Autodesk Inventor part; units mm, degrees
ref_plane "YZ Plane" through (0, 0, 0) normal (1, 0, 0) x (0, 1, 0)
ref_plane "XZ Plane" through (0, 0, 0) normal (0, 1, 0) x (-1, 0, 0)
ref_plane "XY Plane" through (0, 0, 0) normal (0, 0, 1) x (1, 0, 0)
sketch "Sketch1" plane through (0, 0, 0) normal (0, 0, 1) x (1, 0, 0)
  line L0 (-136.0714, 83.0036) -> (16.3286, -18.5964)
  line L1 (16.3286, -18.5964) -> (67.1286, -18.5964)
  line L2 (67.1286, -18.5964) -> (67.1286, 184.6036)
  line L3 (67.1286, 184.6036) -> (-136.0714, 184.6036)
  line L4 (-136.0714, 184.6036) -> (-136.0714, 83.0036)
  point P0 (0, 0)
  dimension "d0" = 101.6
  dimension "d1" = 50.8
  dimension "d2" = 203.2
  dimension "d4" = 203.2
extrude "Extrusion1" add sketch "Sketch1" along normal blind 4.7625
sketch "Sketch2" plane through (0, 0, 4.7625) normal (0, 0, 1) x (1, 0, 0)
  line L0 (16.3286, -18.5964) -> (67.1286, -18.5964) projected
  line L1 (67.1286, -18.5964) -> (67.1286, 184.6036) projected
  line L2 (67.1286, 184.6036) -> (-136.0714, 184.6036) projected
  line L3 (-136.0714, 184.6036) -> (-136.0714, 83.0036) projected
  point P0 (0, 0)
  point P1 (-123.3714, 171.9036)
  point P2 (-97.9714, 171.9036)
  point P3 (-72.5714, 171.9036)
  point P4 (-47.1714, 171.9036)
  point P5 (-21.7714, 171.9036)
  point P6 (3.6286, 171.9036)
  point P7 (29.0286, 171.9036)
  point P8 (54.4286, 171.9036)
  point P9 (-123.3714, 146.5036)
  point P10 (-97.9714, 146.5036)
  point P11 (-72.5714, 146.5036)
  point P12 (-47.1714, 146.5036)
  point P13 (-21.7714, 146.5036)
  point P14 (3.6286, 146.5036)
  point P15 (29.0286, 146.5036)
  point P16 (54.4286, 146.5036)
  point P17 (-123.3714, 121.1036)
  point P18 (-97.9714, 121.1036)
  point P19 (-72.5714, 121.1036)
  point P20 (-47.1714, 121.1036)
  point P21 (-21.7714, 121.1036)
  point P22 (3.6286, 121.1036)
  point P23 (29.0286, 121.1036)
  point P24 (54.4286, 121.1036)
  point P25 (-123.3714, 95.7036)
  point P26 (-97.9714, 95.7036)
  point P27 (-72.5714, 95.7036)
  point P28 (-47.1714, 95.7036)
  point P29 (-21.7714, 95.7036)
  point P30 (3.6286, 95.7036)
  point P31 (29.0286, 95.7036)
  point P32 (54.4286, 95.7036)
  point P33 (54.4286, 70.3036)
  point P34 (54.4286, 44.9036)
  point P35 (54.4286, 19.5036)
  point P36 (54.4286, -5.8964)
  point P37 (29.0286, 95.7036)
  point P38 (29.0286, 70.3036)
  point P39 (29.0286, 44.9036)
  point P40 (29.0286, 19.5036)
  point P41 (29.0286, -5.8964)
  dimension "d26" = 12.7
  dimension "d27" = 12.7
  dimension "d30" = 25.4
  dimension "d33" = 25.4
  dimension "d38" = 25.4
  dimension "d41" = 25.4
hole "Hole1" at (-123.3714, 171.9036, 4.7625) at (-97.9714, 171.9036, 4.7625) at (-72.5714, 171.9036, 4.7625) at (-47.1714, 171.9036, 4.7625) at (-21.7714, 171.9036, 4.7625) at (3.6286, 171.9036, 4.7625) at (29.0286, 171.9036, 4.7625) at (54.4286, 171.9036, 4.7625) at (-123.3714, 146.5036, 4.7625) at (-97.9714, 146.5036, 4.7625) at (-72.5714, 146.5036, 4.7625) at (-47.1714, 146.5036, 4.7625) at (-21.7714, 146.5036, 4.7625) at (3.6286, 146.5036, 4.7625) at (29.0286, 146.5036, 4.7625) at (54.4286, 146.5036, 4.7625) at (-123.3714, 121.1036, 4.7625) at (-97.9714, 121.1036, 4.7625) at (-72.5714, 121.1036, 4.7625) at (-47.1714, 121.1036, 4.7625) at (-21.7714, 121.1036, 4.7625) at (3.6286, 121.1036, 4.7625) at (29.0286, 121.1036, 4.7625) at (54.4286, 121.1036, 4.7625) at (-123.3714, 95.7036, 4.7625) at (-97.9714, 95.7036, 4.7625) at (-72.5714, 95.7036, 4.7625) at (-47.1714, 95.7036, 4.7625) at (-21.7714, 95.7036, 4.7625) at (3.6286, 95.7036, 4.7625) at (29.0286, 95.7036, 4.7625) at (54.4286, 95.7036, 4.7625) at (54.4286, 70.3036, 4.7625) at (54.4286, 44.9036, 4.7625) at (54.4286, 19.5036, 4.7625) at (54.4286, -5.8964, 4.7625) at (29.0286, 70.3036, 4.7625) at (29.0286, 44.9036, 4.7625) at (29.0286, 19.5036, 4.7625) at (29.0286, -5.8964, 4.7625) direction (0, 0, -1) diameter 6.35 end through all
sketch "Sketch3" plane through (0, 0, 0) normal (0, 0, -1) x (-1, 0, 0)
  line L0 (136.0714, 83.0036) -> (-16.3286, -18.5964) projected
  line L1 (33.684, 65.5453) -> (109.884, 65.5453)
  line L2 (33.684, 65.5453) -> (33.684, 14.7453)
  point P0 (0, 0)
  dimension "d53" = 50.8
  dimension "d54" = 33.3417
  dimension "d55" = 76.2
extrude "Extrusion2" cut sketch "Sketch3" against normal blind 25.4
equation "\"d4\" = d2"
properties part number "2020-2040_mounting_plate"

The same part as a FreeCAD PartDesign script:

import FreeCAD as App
import Part
import Sketcher

V = App.Vector
Q = App.Units.Quantity

doc = App.newDocument("Part")
body = doc.addObject("PartDesign::Body", "Body")

sketch1 = body.newObject("Sketcher::SketchObject", "Sketch")
sketch1.AttachmentSupport = (doc.getObject("XY_Plane"), [""])
sketch1.MapMode = "FlatFace"
sketch1.addGeometry([
    Part.LineSegment(V(-136, 185, 0), V(-136, 83, 0)),
    Part.LineSegment(V(-136, 83, 0), V(16, -19, 0)),
    Part.LineSegment(V(16, -19, 0), V(67, -19, 0)),
    Part.LineSegment(V(67, -19, 0), V(67, 185, 0)),
    Part.LineSegment(V(67, 185, 0), V(-136, 185, 0)),
], False)
sketch1.addConstraint([
    Sketcher.Constraint("Coincident", 0, 2, 1, 1),
    Sketcher.Constraint("Coincident", 1, 2, 2, 1),
    Sketcher.Constraint("Coincident", 2, 2, 3, 1),
    Sketcher.Constraint("Coincident", 3, 2, 4, 1),
    Sketcher.Constraint("Coincident", 4, 2, 0, 1),
    Sketcher.Constraint("Vertical", 0),
    Sketcher.Constraint("Horizontal", 2),
    Sketcher.Constraint("Vertical", 3),
    Sketcher.Constraint("Horizontal", 4),
    Sketcher.Constraint("Equal", 4, 3),
    Sketcher.Constraint("DistanceX", 2, 1, 2, 2, Q("2 in")),
    Sketcher.Constraint("DistanceX", 4, 2, 4, 1, Q("8 in")),
    Sketcher.Constraint("DistanceY", 0, 2, 0, 1, Q("4 in")),
    Sketcher.Constraint("DistanceX", 0, 2, -1, 1, Q("136.0714 mm")),
    Sketcher.Constraint("DistanceY", -1, 1, 0, 2, Q("83.0036 mm")),
])
pad1 = body.newObject("PartDesign::Pad", "Pad")
pad1.Profile = sketch1
pad1.Length = Q("0.1875 in")

sketch2 = body.newObject("Sketcher::SketchObject", "Sketch001")
sketch2.AttachmentSupport = (doc.getObject("XY_Plane"), [""])
sketch2.MapMode = "FlatFace"
sketch2.AttachmentOffset = App.Placement(V(0, 0, 0.1875 * 25.4), App.Rotation())
sketch2.addGeometry([
    Part.Circle(V(-123.4, 171.9, 0), V(0, 0, 1), 3.2),
    Part.Circle(V(-98, 171.9, 0), V(0, 0, 1), 3.2),
    Part.Circle(V(-72.6, 171.9, 0), V(0, 0, 1), 3.2),
    Part.Circle(V(-47.2, 171.9, 0), V(0, 0, 1), 3.2),
    Part.Circle(V(-21.8, 171.9, 0), V(0, 0, 1), 3.2),
    Part.Circle(V(3.6, 171.9, 0), V(0, 0, 1), 3.2),
    Part.Circle(V(29, 171.9, 0), V(0, 0, 1), 3.2),
    Part.Circle(V(54.4, 171.9, 0), V(0, 0, 1), 3.2),
    Part.Circle(V(-123.4, 146.5, 0), V(0, 0, 1), 3.2),
    Part.Circle(V(-98, 146.5, 0), V(0, 0, 1), 3.2),
    Part.Circle(V(-72.6, 146.5, 0), V(0, 0, 1), 3.2),
    Part.Circle(V(-47.2, 146.5, 0), V(0, 0, 1), 3.2),
    Part.Circle(V(-21.8, 146.5, 0), V(0, 0, 1), 3.2),
    Part.Circle(V(3.6, 146.5, 0), V(0, 0, 1), 3.2),
    Part.Circle(V(29, 146.5, 0), V(0, 0, 1), 3.2),
    Part.Circle(V(54.4, 146.5, 0), V(0, 0, 1), 3.2),
    Part.Circle(V(-123.4, 121.1, 0), V(0, 0, 1), 3.2),
    Part.Circle(V(-98, 121.1, 0), V(0, 0, 1), 3.2),
    Part.Circle(V(-72.6, 121.1, 0), V(0, 0, 1), 3.2),
    Part.Circle(V(-47.2, 121.1, 0), V(0, 0, 1), 3.2),
    Part.Circle(V(-21.8, 121.1, 0), V(0, 0, 1), 3.2),
    Part.Circle(V(3.6, 121.1, 0), V(0, 0, 1), 3.2),
    Part.Circle(V(29, 121.1, 0), V(0, 0, 1), 3.2),
    Part.Circle(V(54.4, 121.1, 0), V(0, 0, 1), 3.2),
    Part.Circle(V(-123.4, 95.7, 0), V(0, 0, 1), 3.2),
    Part.Circle(V(-98, 95.7, 0), V(0, 0, 1), 3.2),
    Part.Circle(V(-72.6, 95.7, 0), V(0, 0, 1), 3.2),
    Part.Circle(V(-47.2, 95.7, 0), V(0, 0, 1), 3.2),
    Part.Circle(V(-21.8, 95.7, 0), V(0, 0, 1), 3.2),
    Part.Circle(V(3.6, 95.7, 0), V(0, 0, 1), 3.2),
    Part.Circle(V(29, 95.7, 0), V(0, 0, 1), 3.2),
    Part.Circle(V(54.4, 95.7, 0), V(0, 0, 1), 3.2),
    Part.Circle(V(54.4, 70.3, 0), V(0, 0, 1), 3.2),
    Part.Circle(V(54.4, 44.9, 0), V(0, 0, 1), 3.2),
    Part.Circle(V(54.4, 19.5, 0), V(0, 0, 1), 3.2),
    Part.Circle(V(54.4, -5.9, 0), V(0, 0, 1), 3.2),
    Part.Circle(V(29, 70.3, 0), V(0, 0, 1), 3.2),
    Part.Circle(V(29, 44.9, 0), V(0, 0, 1), 3.2),
    Part.Circle(V(29, 19.5, 0), V(0, 0, 1), 3.2),
    Part.Circle(V(29, -5.9, 0), V(0, 0, 1), 3.2),
], False)
sketch2.addConstraint([
    Sketcher.Constraint("Equal", 0, 1),
    Sketcher.Constraint("Equal", 1, 2),
    Sketcher.Constraint("Equal", 2, 3),
    Sketcher.Constraint("Equal", 3, 4),
    Sketcher.Constraint("Equal", 4, 5),
    Sketcher.Constraint("Equal", 5, 6),
    Sketcher.Constraint("Equal", 6, 7),
    Sketcher.Constraint("Equal", 7, 8),
    Sketcher.Constraint("Equal", 8, 9),
    Sketcher.Constraint("Equal", 9, 10),
    Sketcher.Constraint("Equal", 10, 11),
    Sketcher.Constraint("Equal", 11, 12),
    Sketcher.Constraint("Equal", 12, 13),
    Sketcher.Constraint("Equal", 13, 14),
    Sketcher.Constraint("Equal", 14, 15),
    Sketcher.Constraint("Equal", 15, 16),
    Sketcher.Constraint("Equal", 16, 17),
    Sketcher.Constraint("Equal", 17, 18),
    Sketcher.Constraint("Equal", 18, 19),
    Sketcher.Constraint("Equal", 19, 20),
    Sketcher.Constraint("Equal", 20, 21),
    Sketcher.Constraint("Equal", 21, 22),
    Sketcher.Constraint("Equal", 22, 23),
    Sketcher.Constraint("Equal", 23, 24),
    Sketcher.Constraint("Equal", 24, 25),
    Sketcher.Constraint("Equal", 25, 26),
    Sketcher.Constraint("Equal", 26, 27),
    Sketcher.Constraint("Equal", 27, 28),
    Sketcher.Constraint("Equal", 28, 29),
    Sketcher.Constraint("Equal", 29, 30),
    Sketcher.Constraint("Equal", 30, 31),
    Sketcher.Constraint("Equal", 31, 32),
    Sketcher.Constraint("Equal", 32, 33),
    Sketcher.Constraint("Equal", 33, 34),
    Sketcher.Constraint("Equal", 34, 35),
    Sketcher.Constraint("Equal", 35, 36),
    Sketcher.Constraint("Equal", 36, 37),
    Sketcher.Constraint("Equal", 37, 38),
    Sketcher.Constraint("Equal", 38, 39),
    Sketcher.Constraint("Horizontal", 0, 3, 1, 3),
    Sketcher.Constraint("Horizontal", 1, 3, 2, 3),
    Sketcher.Constraint("Horizontal", 2, 3, 3, 3),
    Sketcher.Constraint("Horizontal", 3, 3, 4, 3),
    Sketcher.Constraint("Horizontal", 4, 3, 5, 3),
    Sketcher.Constraint("Horizontal", 5, 3, 6, 3),
    Sketcher.Constraint("Horizontal", 6, 3, 7, 3),
    Sketcher.Constraint("Horizontal", 8, 3, 9, 3),
    Sketcher.Constraint("Horizontal", 9, 3, 10, 3),
    Sketcher.Constraint("Horizontal", 10, 3, 11, 3),
    Sketcher.Constraint("Horizontal", 11, 3, 12, 3),
    Sketcher.Constraint("Horizontal", 12, 3, 13, 3),
    Sketcher.Constraint("Horizontal", 13, 3, 14, 3),
    Sketcher.Constraint("Horizontal", 14, 3, 15, 3),
    Sketcher.Constraint("Horizontal", 16, 3, 17, 3),
    Sketcher.Constraint("Horizontal", 17, 3, 18, 3),
    Sketcher.Constraint("Horizontal", 18, 3, 19, 3),
    Sketcher.Constraint("Horizontal", 19, 3, 20, 3),
    Sketcher.Constraint("Horizontal", 20, 3, 21, 3),
    Sketcher.Constraint("Horizontal", 21, 3, 22, 3),
    Sketcher.Constraint("Horizontal", 22, 3, 23, 3),
    Sketcher.Constraint("Horizontal", 24, 3, 25, 3),
    Sketcher.Constraint("Horizontal", 25, 3, 26, 3),
    Sketcher.Constraint("Horizontal", 26, 3, 27, 3),
    Sketcher.Constraint("Horizontal", 27, 3, 28, 3),
    Sketcher.Constraint("Horizontal", 28, 3, 29, 3),
    Sketcher.Constraint("Horizontal", 29, 3, 30, 3),
    Sketcher.Constraint("Horizontal", 30, 3, 31, 3),
    Sketcher.Constraint("Horizontal", 32, 3, 36, 3),
    Sketcher.Constraint("Horizontal", 33, 3, 37, 3),
    Sketcher.Constraint("Horizontal", 34, 3, 38, 3),
    Sketcher.Constraint("Horizontal", 35, 3, 39, 3),
    Sketcher.Constraint("Vertical", 0, 3, 8, 3),
    Sketcher.Constraint("Vertical", 1, 3, 9, 3),
    Sketcher.Constraint("Vertical", 2, 3, 10, 3),
    Sketcher.Constraint("Vertical", 3, 3, 11, 3),
    Sketcher.Constraint("Vertical", 4, 3, 12, 3),
    Sketcher.Constraint("Vertical", 5, 3, 13, 3),
    Sketcher.Constraint("Vertical", 6, 3, 14, 3),
    Sketcher.Constraint("Vertical", 7, 3, 15, 3),
    Sketcher.Constraint("Vertical", 8, 3, 16, 3),
    Sketcher.Constraint("Vertical", 9, 3, 17, 3),
    Sketcher.Constraint("Vertical", 10, 3, 18, 3),
    Sketcher.Constraint("Vertical", 11, 3, 19, 3),
    Sketcher.Constraint("Vertical", 12, 3, 20, 3),
    Sketcher.Constraint("Vertical", 13, 3, 21, 3),
    Sketcher.Constraint("Vertical", 14, 3, 22, 3),
    Sketcher.Constraint("Vertical", 15, 3, 23, 3),
    Sketcher.Constraint("Vertical", 16, 3, 24, 3),
    Sketcher.Constraint("Vertical", 17, 3, 25, 3),
    Sketcher.Constraint("Vertical", 18, 3, 26, 3),
    Sketcher.Constraint("Vertical", 19, 3, 27, 3),
    Sketcher.Constraint("Vertical", 20, 3, 28, 3),
    Sketcher.Constraint("Vertical", 21, 3, 29, 3),
    Sketcher.Constraint("Vertical", 22, 3, 30, 3),
    Sketcher.Constraint("Vertical", 23, 3, 31, 3),
    Sketcher.Constraint("Vertical", 31, 3, 32, 3),
    Sketcher.Constraint("Vertical", 32, 3, 33, 3),
    Sketcher.Constraint("Vertical", 33, 3, 34, 3),
    Sketcher.Constraint("Vertical", 34, 3, 35, 3),
    Sketcher.Constraint("Vertical", 30, 3, 36, 3),
    Sketcher.Constraint("Vertical", 36, 3, 37, 3),
    Sketcher.Constraint("Vertical", 37, 3, 38, 3),
    Sketcher.Constraint("Vertical", 38, 3, 39, 3),
    Sketcher.Constraint("Diameter", 0, Q("0.25 in")),
    Sketcher.Constraint("DistanceX", 0, 3, 1, 3, Q("1 in")),
    Sketcher.Constraint("DistanceX", 1, 3, 2, 3, Q("1 in")),
    Sketcher.Constraint("DistanceX", 2, 3, 3, 3, Q("1 in")),
    Sketcher.Constraint("DistanceX", 3, 3, 4, 3, Q("1 in")),
    Sketcher.Constraint("DistanceX", 4, 3, 5, 3, Q("1 in")),
    Sketcher.Constraint("DistanceX", 5, 3, 6, 3, Q("1 in")),
    Sketcher.Constraint("DistanceX", 6, 3, 7, 3, Q("1 in")),
    Sketcher.Constraint("DistanceY", 8, 3, 0, 3, Q("1 in")),
    Sketcher.Constraint("DistanceY", 16, 3, 8, 3, Q("1 in")),
    Sketcher.Constraint("DistanceY", 24, 3, 16, 3, Q("1 in")),
    Sketcher.Constraint("DistanceY", 32, 3, 31, 3, Q("1 in")),
    Sketcher.Constraint("DistanceY", 33, 3, 32, 3, Q("1 in")),
    Sketcher.Constraint("DistanceY", 34, 3, 33, 3, Q("1 in")),
    Sketcher.Constraint("DistanceY", 35, 3, 34, 3, Q("1 in")),
    Sketcher.Constraint("DistanceX", 0, 3, -1, 1, Q("123.3714 mm")),
    Sketcher.Constraint("DistanceY", -1, 1, 0, 3, Q("171.9036 mm")),
])
doc.recompute()
hole = body.newObject("PartDesign::Hole", "Hole")
hole.Profile = sketch2
hole.ThreadType = "None"
hole.Diameter = Q("0.25 in")
hole.DepthType = "ThroughAll"

sketch3 = body.newObject("Sketcher::SketchObject", "Sketch002")
sketch3.AttachmentSupport = (doc.getObject("XY_Plane"), [""])
sketch3.MapMode = "FlatFace"
sketch3.addGeometry([
    Part.LineSegment(V(-34, 15, 0), V(-110, 66, 0)),
    Part.LineSegment(V(-110, 66, 0), V(-34, 66, 0)),
    Part.LineSegment(V(-34, 66, 0), V(-34, 15, 0)),
], False)
sketch3.addConstraint([
    Sketcher.Constraint("Coincident", 0, 2, 1, 1),
    Sketcher.Constraint("Coincident", 1, 2, 2, 1),
    Sketcher.Constraint("Coincident", 2, 2, 0, 1),
    Sketcher.Constraint("Horizontal", 1),
    Sketcher.Constraint("Vertical", 2),
    Sketcher.Constraint("DistanceX", 1, 1, 1, 2, Q("3 in")),
    Sketcher.Constraint("DistanceY", 2, 2, 2, 1, Q("2 in")),
    Sketcher.Constraint("DistanceX", 0, 2, -1, 1, Q("109.884 mm")),
    Sketcher.Constraint("DistanceY", -1, 1, 0, 2, Q("65.5453 mm")),
])
pocket1 = body.newObject("PartDesign::Pocket", "Pocket")
pocket1.Profile = sketch3
pocket1.Length = Q("1 in")
pocket1.Reversed = True

doc.recompute()
